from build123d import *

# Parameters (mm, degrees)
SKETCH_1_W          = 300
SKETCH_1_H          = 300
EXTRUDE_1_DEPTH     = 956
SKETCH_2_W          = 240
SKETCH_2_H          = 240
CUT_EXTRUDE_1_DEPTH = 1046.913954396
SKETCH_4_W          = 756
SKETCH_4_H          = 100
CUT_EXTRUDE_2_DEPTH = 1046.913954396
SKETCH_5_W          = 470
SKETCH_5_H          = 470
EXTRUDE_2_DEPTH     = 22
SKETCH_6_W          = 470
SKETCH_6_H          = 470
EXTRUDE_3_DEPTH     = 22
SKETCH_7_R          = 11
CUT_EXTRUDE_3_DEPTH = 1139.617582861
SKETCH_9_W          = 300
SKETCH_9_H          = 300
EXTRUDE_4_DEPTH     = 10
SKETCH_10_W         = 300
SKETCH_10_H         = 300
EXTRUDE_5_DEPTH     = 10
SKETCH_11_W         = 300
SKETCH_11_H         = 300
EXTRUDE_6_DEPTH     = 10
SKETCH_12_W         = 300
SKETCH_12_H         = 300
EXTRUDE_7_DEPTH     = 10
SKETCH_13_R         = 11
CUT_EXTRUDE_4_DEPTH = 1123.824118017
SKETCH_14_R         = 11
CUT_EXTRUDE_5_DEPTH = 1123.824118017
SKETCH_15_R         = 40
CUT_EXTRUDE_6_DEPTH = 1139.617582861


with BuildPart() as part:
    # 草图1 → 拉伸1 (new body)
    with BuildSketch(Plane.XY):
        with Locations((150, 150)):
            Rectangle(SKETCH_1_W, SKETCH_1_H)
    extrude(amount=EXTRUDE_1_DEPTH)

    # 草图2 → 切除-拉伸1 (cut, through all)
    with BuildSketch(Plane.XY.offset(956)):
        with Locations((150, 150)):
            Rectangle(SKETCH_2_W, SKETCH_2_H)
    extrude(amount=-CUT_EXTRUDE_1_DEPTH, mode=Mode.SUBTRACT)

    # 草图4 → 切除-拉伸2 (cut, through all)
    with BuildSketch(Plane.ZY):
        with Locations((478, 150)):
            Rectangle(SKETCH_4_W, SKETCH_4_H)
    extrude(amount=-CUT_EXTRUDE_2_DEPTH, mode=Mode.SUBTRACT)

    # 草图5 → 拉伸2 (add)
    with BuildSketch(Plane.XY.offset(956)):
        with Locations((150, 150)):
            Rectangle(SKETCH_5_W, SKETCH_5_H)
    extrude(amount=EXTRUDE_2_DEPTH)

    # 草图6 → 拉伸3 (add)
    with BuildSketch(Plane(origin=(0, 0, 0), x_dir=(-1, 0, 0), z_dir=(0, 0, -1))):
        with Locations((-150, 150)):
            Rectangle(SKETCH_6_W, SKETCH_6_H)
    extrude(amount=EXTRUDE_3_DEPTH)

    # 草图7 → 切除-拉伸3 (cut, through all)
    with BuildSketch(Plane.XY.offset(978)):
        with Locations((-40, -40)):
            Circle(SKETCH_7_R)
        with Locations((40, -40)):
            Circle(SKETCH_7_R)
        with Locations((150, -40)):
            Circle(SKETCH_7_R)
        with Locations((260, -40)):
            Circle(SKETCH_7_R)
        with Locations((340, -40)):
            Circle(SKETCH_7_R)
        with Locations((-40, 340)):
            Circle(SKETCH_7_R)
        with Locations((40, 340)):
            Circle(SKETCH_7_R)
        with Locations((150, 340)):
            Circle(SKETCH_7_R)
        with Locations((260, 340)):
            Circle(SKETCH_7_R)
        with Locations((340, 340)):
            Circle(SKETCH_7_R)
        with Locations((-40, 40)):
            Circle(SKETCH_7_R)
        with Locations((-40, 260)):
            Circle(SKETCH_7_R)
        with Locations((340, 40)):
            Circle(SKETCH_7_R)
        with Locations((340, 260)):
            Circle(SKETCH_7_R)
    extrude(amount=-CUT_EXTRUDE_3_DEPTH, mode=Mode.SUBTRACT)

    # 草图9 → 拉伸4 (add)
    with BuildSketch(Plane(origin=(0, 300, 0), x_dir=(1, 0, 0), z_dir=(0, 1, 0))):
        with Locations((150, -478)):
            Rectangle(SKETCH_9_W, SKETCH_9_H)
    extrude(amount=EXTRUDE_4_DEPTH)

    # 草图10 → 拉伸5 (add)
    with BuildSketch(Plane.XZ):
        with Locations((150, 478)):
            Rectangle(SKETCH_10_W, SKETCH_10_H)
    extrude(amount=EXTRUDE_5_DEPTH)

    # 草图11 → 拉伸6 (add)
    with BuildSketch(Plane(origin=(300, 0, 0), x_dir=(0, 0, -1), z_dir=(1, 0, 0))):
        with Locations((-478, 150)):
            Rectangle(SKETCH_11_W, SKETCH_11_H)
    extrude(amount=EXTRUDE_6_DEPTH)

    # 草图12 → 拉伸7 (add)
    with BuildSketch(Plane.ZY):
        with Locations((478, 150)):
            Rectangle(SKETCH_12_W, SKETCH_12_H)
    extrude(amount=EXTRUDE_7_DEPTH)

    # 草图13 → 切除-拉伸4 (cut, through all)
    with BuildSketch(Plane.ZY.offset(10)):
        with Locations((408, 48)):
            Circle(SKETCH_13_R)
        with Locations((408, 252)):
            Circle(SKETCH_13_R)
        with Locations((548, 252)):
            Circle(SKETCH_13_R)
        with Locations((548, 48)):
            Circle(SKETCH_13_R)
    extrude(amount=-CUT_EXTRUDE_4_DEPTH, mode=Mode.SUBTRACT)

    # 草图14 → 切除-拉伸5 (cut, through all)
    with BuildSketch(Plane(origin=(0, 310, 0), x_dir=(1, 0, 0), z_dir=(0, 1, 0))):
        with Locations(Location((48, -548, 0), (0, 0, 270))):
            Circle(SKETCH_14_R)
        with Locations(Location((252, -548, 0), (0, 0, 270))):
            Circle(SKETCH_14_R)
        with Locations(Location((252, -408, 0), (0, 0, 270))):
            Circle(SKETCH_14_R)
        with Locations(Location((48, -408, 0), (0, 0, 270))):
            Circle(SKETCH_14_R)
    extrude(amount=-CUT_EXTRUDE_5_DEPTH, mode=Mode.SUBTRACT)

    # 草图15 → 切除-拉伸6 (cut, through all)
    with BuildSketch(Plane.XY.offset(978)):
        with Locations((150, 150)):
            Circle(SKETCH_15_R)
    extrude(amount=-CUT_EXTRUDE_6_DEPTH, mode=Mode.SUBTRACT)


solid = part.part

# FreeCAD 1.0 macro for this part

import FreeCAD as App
import Part
import Sketcher
from FreeCAD import Vector


def add_polygon(sketch, points):
    """Adds a closed chain of lines whose ends are joined by coincident constraints."""
    first, n = sketch.GeometryCount, len(points)
    for a, b in zip(points, points[1:] + points[:1]):
        sketch.addGeometry(Part.LineSegment(App.Vector(*a, 0), App.Vector(*b, 0)), False)
    for i in range(n):
        sketch.addConstraint(Sketcher.Constraint("Coincident", first + i, 2, first + (i + 1) % n, 1))

doc = App.newDocument("Part")
params = doc.addObject("Spreadsheet::Sheet", "Params")
for row, (alias, value) in enumerate([
    ("sketch1_width", "300 mm"),
    ("pad1_length", "956 mm"),
    ("sketch2_width", "240 mm"),
    ("sketch3_width", "100 mm"),
    ("sketch3_height", "756 mm"),
    ("sketch4_width", "470 mm"),
    ("pad2_length", "22 mm"),
    ("sketch5_width", "470 mm"),
    ("pad3_length", "22 mm"),
    ("sketch6_diameter", "22 mm"),
    ("sketch7_width", "300 mm"),
    ("pad4_length", "10 mm"),
    ("sketch8_width", "300 mm"),
    ("pad5_length", "10 mm"),
    ("sketch9_width", "300 mm"),
    ("pad6_length", "10 mm"),
    ("sketch10_width", "300 mm"),
    ("pad7_length", "10 mm"),
    ("sketch11_diameter", "22 mm"),
    ("sketch12_diameter", "22 mm"),
    ("sketch13_diameter", "80 mm"),
], start=1):
    params.set(f"A{row}", alias)
    params.set(f"B{row}", "=" + value)
    params.setAlias(f"B{row}", alias)

body = doc.addObject("PartDesign::Body", "Body")

# Sketch on XY plane
sketch1 = doc.addObject("Sketcher::SketchObject", "Sketch")
body.addObject(sketch1)
sketch1.AttachmentSupport = (doc.XY_Plane, [""])
sketch1.MapMode = "FlatFace"
add_polygon(sketch1, [(0, 300), (0, 0), (300, 0), (300, 300)])  # lines 0-3
sketch1.addConstraint([
    Sketcher.Constraint("Vertical", 0),
    Sketcher.Constraint("Horizontal", 1),
    Sketcher.Constraint("Vertical", 2),
    Sketcher.Constraint("Horizontal", 3),
    Sketcher.Constraint("Coincident", 0, 2, -1, 1),
    Sketcher.Constraint("Equal", 3, 0),
    Sketcher.Constraint("DistanceX", 1, 1, 1, 2, 300.0),
])
sketch1.setExpression("Constraints[10]", "Params.sketch1_width")
pad1 = doc.addObject("PartDesign::Pad", "Pad")
body.addObject(pad1)
pad1.Profile = sketch1
pad1.setExpression("Length", "Params.pad1_length")

# Sketch on XY plane
sketch2 = doc.addObject("Sketcher::SketchObject", "Sketch001")
body.addObject(sketch2)
sketch2.AttachmentSupport = (doc.XY_Plane, [""])
sketch2.MapMode = "FlatFace"
sketch2.AttachmentOffset = App.Placement(Vector(0, 0, 956), App.Rotation())
add_polygon(sketch2, [(30, 270), (30, 30), (270, 30), (270, 270)])  # lines 0-3
sketch2.addConstraint([
    Sketcher.Constraint("Vertical", 0),
    Sketcher.Constraint("Horizontal", 1),
    Sketcher.Constraint("Vertical", 2),
    Sketcher.Constraint("Horizontal", 3),
    Sketcher.Constraint("Equal", 3, 0),
    Sketcher.Constraint("DistanceX", 1, 1, 1, 2, 240.0),
    Sketcher.Constraint("DistanceX", -1, 1, 0, 2, 30.0),
    Sketcher.Constraint("DistanceY", -1, 1, 0, 2, 30.0),
])
sketch2.setExpression("Constraints[9]", "Params.sketch2_width")
pocket1 = doc.addObject("PartDesign::Pocket", "Pocket")
body.addObject(pocket1)
pocket1.Profile = sketch2
pocket1.Type = "ThroughAll"

# Sketch on YZ plane
sketch3 = doc.addObject("Sketcher::SketchObject", "Sketch002")
body.addObject(sketch3)
sketch3.AttachmentSupport = (doc.YZ_Plane, [""])
sketch3.MapMode = "FlatFace"
add_polygon(sketch3, [(200, 100), (100, 100), (100, 856), (200, 856)])  # lines 0-3
sketch3.addConstraint([
    Sketcher.Constraint("Horizontal", 0),
    Sketcher.Constraint("Vertical", 1),
    Sketcher.Constraint("Horizontal", 2),
    Sketcher.Constraint("Vertical", 3),
    Sketcher.Constraint("DistanceX", 0, 2, 0, 1, 100.0),
    Sketcher.Constraint("DistanceY", 1, 1, 1, 2, 756.0),
    Sketcher.Constraint("DistanceX", -1, 1, 0, 2, 100.0),
    Sketcher.Constraint("DistanceY", -1, 1, 0, 2, 100.0),
])
sketch3.setExpression("Constraints[8]", "Params.sketch3_width")
sketch3.setExpression("Constraints[9]", "Params.sketch3_height")
pocket2 = doc.addObject("PartDesign::Pocket", "Pocket001")
body.addObject(pocket2)
pocket2.Profile = sketch3
pocket2.Type = "ThroughAll"
pocket2.Reversed = True

# Sketch on XY plane
sketch4 = doc.addObject("Sketcher::SketchObject", "Sketch003")
body.addObject(sketch4)
sketch4.AttachmentSupport = (doc.XY_Plane, [""])
sketch4.MapMode = "FlatFace"
sketch4.AttachmentOffset = App.Placement(Vector(0, 0, 956), App.Rotation())
add_polygon(sketch4, [(-85, 385), (-85, -85), (385, -85), (385, 385)])  # lines 0-3
sketch4.addConstraint([
    Sketcher.Constraint("Vertical", 0),
    Sketcher.Constraint("Horizontal", 1),
    Sketcher.Constraint("Vertical", 2),
    Sketcher.Constraint("Horizontal", 3),
    Sketcher.Constraint("Equal", 3, 0),
    Sketcher.Constraint("DistanceX", 1, 1, 1, 2, 470.0),
    Sketcher.Constraint("DistanceX", 0, 2, -1, 1, 85.0),
    Sketcher.Constraint("DistanceY", 0, 2, -1, 1, 85.0),
])
sketch4.setExpression("Constraints[9]", "Params.sketch4_width")
pad2 = doc.addObject("PartDesign::Pad", "Pad001")
body.addObject(pad2)
pad2.Profile = sketch4
pad2.setExpression("Length", "Params.pad2_length")

# Sketch on XY plane
sketch5 = doc.addObject("Sketcher::SketchObject", "Sketch004")
body.addObject(sketch5)
sketch5.AttachmentSupport = (doc.XY_Plane, [""])
sketch5.MapMode = "FlatFace"
add_polygon(sketch5, [(385, 385), (385, -85), (-85, -85), (-85, 385)])  # lines 0-3
sketch5.addConstraint([
    Sketcher.Constraint("Vertical", 0),
    Sketcher.Constraint("Horizontal", 1),
    Sketcher.Constraint("Vertical", 2),
    Sketcher.Constraint("Horizontal", 3),
    Sketcher.Constraint("Equal", 3, 0),
    Sketcher.Constraint("DistanceX", 1, 2, 1, 1, 470.0),
    Sketcher.Constraint("DistanceX", -1, 1, 0, 2, 385.0),
    Sketcher.Constraint("DistanceY", 0, 2, -1, 1, 85.0),
])
sketch5.setExpression("Constraints[9]", "Params.sketch5_width")
pad3 = doc.addObject("PartDesign::Pad", "Pad002")
body.addObject(pad3)
pad3.Profile = sketch5
pad3.setExpression("Length", "Params.pad3_length")
pad3.Reversed = True

# Sketch on XY plane
sketch6 = doc.addObject("Sketcher::SketchObject", "Sketch005")
body.addObject(sketch6)
sketch6.AttachmentSupport = (doc.XY_Plane, [""])
sketch6.MapMode = "FlatFace"
sketch6.AttachmentOffset = App.Placement(Vector(0, 0, 978), App.Rotation())
sketch6.addGeometry([
    Part.Circle(Vector(-40, -40, 0), Vector(0, 0, 1), 11),  # 0
    Part.Circle(Vector(40, -40, 0), Vector(0, 0, 1), 11),  # 1
    Part.Circle(Vector(150, -40, 0), Vector(0, 0, 1), 11),  # 2
    Part.Circle(Vector(260, -40, 0), Vector(0, 0, 1), 11),  # 3
    Part.Circle(Vector(340, -40, 0), Vector(0, 0, 1), 11),  # 4
    Part.Circle(Vector(-40, 340, 0), Vector(0, 0, 1), 11),  # 5
    Part.Circle(Vector(40, 340, 0), Vector(0, 0, 1), 11),  # 6
    Part.Circle(Vector(150, 340, 0), Vector(0, 0, 1), 11),  # 7
    Part.Circle(Vector(260, 340, 0), Vector(0, 0, 1), 11),  # 8
    Part.Circle(Vector(340, 340, 0), Vector(0, 0, 1), 11),  # 9
    Part.Circle(Vector(-40, 40, 0), Vector(0, 0, 1), 11),  # 10
    Part.Circle(Vector(-40, 260, 0), Vector(0, 0, 1), 11),  # 11
    Part.Circle(Vector(340, 40, 0), Vector(0, 0, 1), 11),  # 12
    Part.Circle(Vector(340, 260, 0), Vector(0, 0, 1), 11),  # 13
], False)
sketch6.addConstraint([
    Sketcher.Constraint("Equal", 0, 1),
    Sketcher.Constraint("Equal", 1, 2),
    Sketcher.Constraint("Equal", 2, 3),
    Sketcher.Constraint("Equal", 3, 4),
    Sketcher.Constraint("Equal", 4, 5),
    Sketcher.Constraint("Equal", 5, 6),
    Sketcher.Constraint("Equal", 6, 7),
    Sketcher.Constraint("Equal", 7, 8),
    Sketcher.Constraint("Equal", 8, 9),
    Sketcher.Constraint("Equal", 9, 10),
    Sketcher.Constraint("Equal", 10, 11),
    Sketcher.Constraint("Equal", 11, 12),
    Sketcher.Constraint("Equal", 12, 13),
    Sketcher.Constraint("Symmetric", 1, 3, 10, 3, -1, 1),
    Sketcher.Constraint("Symmetric", 0, 3, 1, 3, -2),
    Sketcher.Constraint("Symmetric", 5, 3, 6, 3, -2),
    Sketcher.Constraint("Symmetric", 4, 3, 12, 3, -1),
    Sketcher.Constraint("Horizontal", 1, 3, 2, 3),
    Sketcher.Constraint("Horizontal", 2, 3, 3, 3),
    Sketcher.Constraint("Horizontal", 3, 3, 4, 3),
    Sketcher.Constraint("Horizontal", 6, 3, 7, 3),
    Sketcher.Constraint("Horizontal", 7, 3, 8, 3),
    Sketcher.Constraint("Horizontal", 8, 3, 9, 3),
    Sketcher.Constraint("Horizontal", 11, 3, 13, 3),
    Sketcher.Constraint("Vertical", 0, 3, 5, 3),
    Sketcher.Constraint("Vertical", 2, 3, 7, 3),
    Sketcher.Constraint("Vertical", 3, 3, 8, 3),
    Sketcher.Constraint("Vertical", 4, 3, 9, 3),
    Sketcher.Constraint("Vertical", 10, 3, 11, 3),
    Sketcher.Constraint("Vertical", 12, 3, 13, 3),
    Sketcher.Constraint("Diameter", 0, 22.0),
    Sketcher.Constraint("DistanceX", 0, 3, -1, 1, 40.0),
    Sketcher.Constraint("DistanceY", 0, 3, -1, 1, 40.0),
    Sketcher.Constraint("DistanceX", -1, 1, 2, 3, 150.0),
    Sketcher.Constraint("DistanceX", -1, 1, 3, 3, 260.0),
    Sketcher.Constraint("DistanceX", -1, 1, 4, 3, 340.0),
    Sketcher.Constraint("DistanceY", -1, 1, 5, 3, 340.0),
    Sketcher.Constraint("DistanceY", -1, 1, 11, 3, 260.0),
])
sketch6.setExpression("Constraints[30]", "Params.sketch6_diameter")
pocket3 = doc.addObject("PartDesign::Pocket", "Pocket002")
body.addObject(pocket3)
pocket3.Profile = sketch6
pocket3.Type = "ThroughAll"

# Sketch on XZ plane
sketch7 = doc.addObject("Sketcher::SketchObject", "Sketch006")
body.addObject(sketch7)
sketch7.AttachmentSupport = (doc.XZ_Plane, [""])
sketch7.MapMode = "FlatFace"
sketch7.AttachmentOffset = App.Placement(Vector(0, 0, -300), App.Rotation())
add_polygon(sketch7, [(0, 328), (0, 628), (300, 628), (300, 328)])  # lines 0-3
sketch7.addConstraint([
    Sketcher.Constraint("Vertical", 0),
    Sketcher.Constraint("Horizontal", 1),
    Sketcher.Constraint("Vertical", 2),
    Sketcher.Constraint("Horizontal", 3),
    Sketcher.Constraint("PointOnObject", 0, 2, -2),
    Sketcher.Constraint("Equal", 3, 0),
    Sketcher.Constraint("DistanceX", 1, 1, 1, 2, 300.0),
    Sketcher.Constraint("DistanceY", -1, 1, 0, 2, 628.0),
])
sketch7.setExpression("Constraints[10]", "Params.sketch7_width")
pad4 = doc.addObject("PartDesign::Pad", "Pad003")
body.addObject(pad4)
pad4.Profile = sketch7
pad4.setExpression("Length", "Params.pad4_length")
pad4.Reversed = True

# Sketch on XZ plane
sketch8 = doc.addObject("Sketcher::SketchObject", "Sketch007")
body.addObject(sketch8)
sketch8.AttachmentSupport = (doc.XZ_Plane, [""])
sketch8.MapMode = "FlatFace"
add_polygon(sketch8, [(0, 628), (0, 328), (300, 328), (300, 628)])  # lines 0-3
sketch8.addConstraint([
    Sketcher.Constraint("Vertical", 0),
    Sketcher.Constraint("Horizontal", 1),
    Sketcher.Constraint("Vertical", 2),
    Sketcher.Constraint("Horizontal", 3),
    Sketcher.Constraint("PointOnObject", 0, 2, -2),
    Sketcher.Constraint("Equal", 3, 0),
    Sketcher.Constraint("DistanceX", 1, 1, 1, 2, 300.0),
    Sketcher.Constraint("DistanceY", -1, 1, 0, 2, 328.0),
])
sketch8.setExpression("Constraints[10]", "Params.sketch8_width")
pad5 = doc.addObject("PartDesign::Pad", "Pad004")
body.addObject(pad5)
pad5.Profile = sketch8
pad5.setExpression("Length", "Params.pad5_length")

# Sketch on YZ plane
sketch9 = doc.addObject("Sketcher::SketchObject", "Sketch008")
body.addObject(sketch9)
sketch9.AttachmentSupport = (doc.YZ_Plane, [""])
sketch9.MapMode = "FlatFace"
sketch9.AttachmentOffset = App.Placement(Vector(0, 0, 300), App.Rotation())
add_polygon(sketch9, [(300, 628), (0, 628), (0, 328), (300, 328)])  # lines 0-3
sketch9.addConstraint([
    Sketcher.Constraint("Horizontal", 0),
    Sketcher.Constraint("Vertical", 1),
    Sketcher.Constraint("Horizontal", 2),
    Sketcher.Constraint("Vertical", 3),
    Sketcher.Constraint("PointOnObject", 0, 2, -2),
    Sketcher.Constraint("Equal", 2, 1),
    Sketcher.Constraint("DistanceX", 0, 2, 0, 1, 300.0),
    Sketcher.Constraint("DistanceY", -1, 1, 0, 2, 628.0),
])
sketch9.setExpression("Constraints[10]", "Params.sketch9_width")
pad6 = doc.addObject("PartDesign::Pad", "Pad005")
body.addObject(pad6)
pad6.Profile = sketch9
pad6.setExpression("Length", "Params.pad6_length")

# Sketch on YZ plane
sketch10 = doc.addObject("Sketcher::SketchObject", "Sketch009")
body.addObject(sketch10)
sketch10.AttachmentSupport = (doc.YZ_Plane, [""])
sketch10.MapMode = "FlatFace"
add_polygon(sketch10, [(300, 328), (0, 328), (0, 628), (300, 628)])  # lines 0-3
sketch10.addConstraint([
    Sketcher.Constraint("Horizontal", 0),
    Sketcher.Constraint("Vertical", 1),
    Sketcher.Constraint("Horizontal", 2),
    Sketcher.Constraint("Vertical", 3),
    Sketcher.Constraint("PointOnObject", 0, 2, -2),
    Sketcher.Constraint("Equal", 2, 1),
    Sketcher.Constraint("DistanceX", 0, 2, 0, 1, 300.0),
    Sketcher.Constraint("DistanceY", -1, 1, 0, 2, 328.0),
])
sketch10.setExpression("Constraints[10]", "Params.sketch10_width")
pad7 = doc.addObject("PartDesign::Pad", "Pad006")
body.addObject(pad7)
pad7.Profile = sketch10
pad7.setExpression("Length", "Params.pad7_length")
pad7.Reversed = True

# Sketch on YZ plane
sketch11 = doc.addObject("Sketcher::SketchObject", "Sketch010")
body.addObject(sketch11)
sketch11.AttachmentSupport = (doc.YZ_Plane, [""])
sketch11.MapMode = "FlatFace"
sketch11.AttachmentOffset = App.Placement(Vector(0, 0, -10), App.Rotation())
sketch11.addGeometry([
    Part.Circle(Vector(48, 408, 0), Vector(0, 0, 1), 11),
    Part.Circle(Vector(252, 408, 0), Vector(0, 0, 1), 11),
    Part.Circle(Vector(252, 548, 0), Vector(0, 0, 1), 11),
    Part.Circle(Vector(48, 548, 0), Vector(0, 0, 1), 11),
], False)
sketch11.addConstraint([
    Sketcher.Constraint("Equal", 0, 1),
    Sketcher.Constraint("Equal", 1, 2),
    Sketcher.Constraint("Equal", 2, 3),
    Sketcher.Constraint("Horizontal", 0, 3, 1, 3),
    Sketcher.Constraint("Horizontal", 2, 3, 3, 3),
    Sketcher.Constraint("Vertical", 1, 3, 2, 3),
    Sketcher.Constraint("Vertical", 0, 3, 3, 3),
    Sketcher.Constraint("Diameter", 0, 22.0),
    Sketcher.Constraint("DistanceX", -1, 1, 0, 3, 48.0),
    Sketcher.Constraint("DistanceY", -1, 1, 0, 3, 408.0),
    Sketcher.Constraint("DistanceX", -1, 1, 1, 3, 252.0),
    Sketcher.Constraint("DistanceY", -1, 1, 2, 3, 548.0),
])
sketch11.setExpression("Constraints[7]", "Params.sketch11_diameter")
pocket4 = doc.addObject("PartDesign::Pocket", "Pocket003")
body.addObject(pocket4)
pocket4.Profile = sketch11
pocket4.Type = "ThroughAll"
pocket4.Reversed = True

# Sketch on XZ plane
sketch12 = doc.addObject("Sketcher::SketchObject", "Sketch011")
body.addObject(sketch12)
sketch12.AttachmentSupport = (doc.XZ_Plane, [""])
sketch12.MapMode = "FlatFace"
sketch12.AttachmentOffset = App.Placement(Vector(0, 0, -310), App.Rotation())
sketch12.addGeometry([
    Part.Circle(Vector(48, 548, 0), Vector(0, 0, 1), 11),
    Part.Circle(Vector(252, 548, 0), Vector(0, 0, 1), 11),
    Part.Circle(Vector(252, 408, 0), Vector(0, 0, 1), 11),
    Part.Circle(Vector(48, 408, 0), Vector(0, 0, 1), 11),
], False)
sketch12.addConstraint([
    Sketcher.Constraint("Equal", 0, 1),
    Sketcher.Constraint("Equal", 1, 2),
    Sketcher.Constraint("Equal", 2, 3),
    Sketcher.Constraint("Horizontal", 0, 3, 1, 3),
    Sketcher.Constraint("Horizontal", 2, 3, 3, 3),
    Sketcher.Constraint("Vertical", 1, 3, 2, 3),
    Sketcher.Constraint("Vertical", 0, 3, 3, 3),
    Sketcher.Constraint("Diameter", 0, 22.0),
    Sketcher.Constraint("DistanceX", -1, 1, 0, 3, 48.0),
    Sketcher.Constraint("DistanceY", -1, 1, 0, 3, 548.0),
    Sketcher.Constraint("DistanceX", -1, 1, 1, 3, 252.0),
    Sketcher.Constraint("DistanceY", -1, 1, 2, 3, 408.0),
])
sketch12.setExpression("Constraints[7]", "Params.sketch12_diameter")
pocket5 = doc.addObject("PartDesign::Pocket", "Pocket004")
body.addObject(pocket5)
pocket5.Profile = sketch12
pocket5.Type = "ThroughAll"
pocket5.Reversed = True

# Sketch on XY plane
sketch13 = doc.addObject("Sketcher::SketchObject", "Sketch012")
body.addObject(sketch13)
sketch13.AttachmentSupport = (doc.XY_Plane, [""])
sketch13.MapMode = "FlatFace"
sketch13.AttachmentOffset = App.Placement(Vector(0, 0, 978), App.Rotation())
sketch13.addGeometry(Part.Circle(Vector(150, 150, 0), Vector(0, 0, 1), 40), False)
sketch13.addConstraint([
    Sketcher.Constraint("Diameter", 0, 80.0),
    Sketcher.Constraint("DistanceX", -1, 1, 0, 3, 150.0),
    Sketcher.Constraint("DistanceY", -1, 1, 0, 3, 150.0),
])
sketch13.setExpression("Constraints[0]", "Params.sketch13_diameter")
pocket6 = doc.addObject("PartDesign::Pocket", "Pocket005")
body.addObject(pocket6)
pocket6.Profile = sketch13
pocket6.Type = "ThroughAll"

doc.recompute()
